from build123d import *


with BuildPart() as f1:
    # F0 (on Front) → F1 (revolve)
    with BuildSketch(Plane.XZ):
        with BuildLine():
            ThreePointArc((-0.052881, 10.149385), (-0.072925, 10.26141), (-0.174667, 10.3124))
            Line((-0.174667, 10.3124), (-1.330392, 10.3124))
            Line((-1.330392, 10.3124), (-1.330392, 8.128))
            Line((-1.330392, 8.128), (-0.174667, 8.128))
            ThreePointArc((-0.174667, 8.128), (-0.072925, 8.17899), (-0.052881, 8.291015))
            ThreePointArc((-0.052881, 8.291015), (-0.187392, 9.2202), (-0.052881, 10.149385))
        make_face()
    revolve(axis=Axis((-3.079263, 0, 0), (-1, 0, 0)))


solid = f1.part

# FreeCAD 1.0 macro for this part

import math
import FreeCAD as App
import Part
import Sketcher

V = App.Vector
Q = App.Units.Quantity

doc = App.newDocument("Part")
body = doc.addObject("PartDesign::Body", "Body")

# Sketch on XZ plane
sketch1 = body.newObject("Sketcher::SketchObject", "Sketch")
sketch1.AttachmentSupport = (doc.getObject("XZ_Plane"), [""])
sketch1.MapMode = "FlatFace"
sketch1.addGeometry(Part.ArcOfCircle(Part.Circle(V(-0.17, 10.19, 0), V(0, 0, 1), 0.13), math.radians(-16), math.radians(90)), False)
sketch1.addGeometry(Part.LineSegment(V(-0.17, 10.31, 0), V(-1.33, 10.31, 0)), False)
sketch1.addGeometry(Part.LineSegment(V(-1.33, 10.31, 0), V(-1.33, 8.13, 0)), False)
sketch1.addGeometry(Part.LineSegment(V(-1.33, 8.13, 0), V(-0.17, 8.13, 0)), False)
sketch1.addGeometry(Part.ArcOfCircle(Part.Circle(V(-0.17, 8.25, 0), V(0, 0, 1), 0.13), math.radians(-90), math.radians(16)), False)
sketch1.addGeometry(Part.ArcOfCircle(Part.Circle(V(3.09, 9.22, 0), V(0, 0, 1), 3.28), math.radians(164), math.radians(196)), False)
sketch1.addConstraint(Sketcher.Constraint("Tangent", 0, 2, 1, 1))
sketch1.addConstraint(Sketcher.Constraint("Coincident", 1, 2, 2, 1))
sketch1.addConstraint(Sketcher.Constraint("Coincident", 2, 2, 3, 1))
sketch1.addConstraint(Sketcher.Constraint("Tangent", 3, 2, 4, 1))
sketch1.addConstraint(Sketcher.Constraint("Coincident", 4, 2, 5, 2))
sketch1.addConstraint(Sketcher.Constraint("Coincident", 5, 1, 0, 1))
sketch1.addConstraint(Sketcher.Constraint("Horizontal", 1))
sketch1.addConstraint(Sketcher.Constraint("Vertical", 2))
sketch1.addConstraint(Sketcher.Constraint("Horizontal", 3))
sketch1.addConstraint(Sketcher.Constraint("Equal", 0, 4))
sketch1.addConstraint(Sketcher.Constraint("Vertical", 0, 3, 4, 3))
sketch1.addConstraint(Sketcher.Constraint("Vertical", 4, 2, 5, 1))
sketch1.addConstraint(Sketcher.Constraint("Radius", 0, Q("0.005 in")))
sketch1.addConstraint(Sketcher.Constraint("Radius", 5, Q("0.1290001 in")))
sketch1.addConstraint(Sketcher.Constraint("DistanceY", 2, 2, 2, 1, Q("0.086 in")))
sketch1.addConstraint(Sketcher.Constraint("DistanceY", -1, 1, 2, 2, Q("0.32 in")))
sketch1.addConstraint(Sketcher.Constraint("DistanceX", 1, 2, 5, 3, Q("0.1740001 in")))
sketch1.addConstraint(Sketcher.Constraint("DistanceX", -1, 1, 5, 3, Q("3.08921 mm")))
sketch1.addConstraint(Sketcher.Constraint("DistanceX", 4, 2, -1, 1, Q("0.052881 mm")))
revolution = body.newObject("PartDesign::Revolution", "Revolution")
revolution.Profile = sketch1
revolution.ReferenceAxis = (sketch1, ["H_Axis"])
revolution.Angle = 360

doc.recompute()
